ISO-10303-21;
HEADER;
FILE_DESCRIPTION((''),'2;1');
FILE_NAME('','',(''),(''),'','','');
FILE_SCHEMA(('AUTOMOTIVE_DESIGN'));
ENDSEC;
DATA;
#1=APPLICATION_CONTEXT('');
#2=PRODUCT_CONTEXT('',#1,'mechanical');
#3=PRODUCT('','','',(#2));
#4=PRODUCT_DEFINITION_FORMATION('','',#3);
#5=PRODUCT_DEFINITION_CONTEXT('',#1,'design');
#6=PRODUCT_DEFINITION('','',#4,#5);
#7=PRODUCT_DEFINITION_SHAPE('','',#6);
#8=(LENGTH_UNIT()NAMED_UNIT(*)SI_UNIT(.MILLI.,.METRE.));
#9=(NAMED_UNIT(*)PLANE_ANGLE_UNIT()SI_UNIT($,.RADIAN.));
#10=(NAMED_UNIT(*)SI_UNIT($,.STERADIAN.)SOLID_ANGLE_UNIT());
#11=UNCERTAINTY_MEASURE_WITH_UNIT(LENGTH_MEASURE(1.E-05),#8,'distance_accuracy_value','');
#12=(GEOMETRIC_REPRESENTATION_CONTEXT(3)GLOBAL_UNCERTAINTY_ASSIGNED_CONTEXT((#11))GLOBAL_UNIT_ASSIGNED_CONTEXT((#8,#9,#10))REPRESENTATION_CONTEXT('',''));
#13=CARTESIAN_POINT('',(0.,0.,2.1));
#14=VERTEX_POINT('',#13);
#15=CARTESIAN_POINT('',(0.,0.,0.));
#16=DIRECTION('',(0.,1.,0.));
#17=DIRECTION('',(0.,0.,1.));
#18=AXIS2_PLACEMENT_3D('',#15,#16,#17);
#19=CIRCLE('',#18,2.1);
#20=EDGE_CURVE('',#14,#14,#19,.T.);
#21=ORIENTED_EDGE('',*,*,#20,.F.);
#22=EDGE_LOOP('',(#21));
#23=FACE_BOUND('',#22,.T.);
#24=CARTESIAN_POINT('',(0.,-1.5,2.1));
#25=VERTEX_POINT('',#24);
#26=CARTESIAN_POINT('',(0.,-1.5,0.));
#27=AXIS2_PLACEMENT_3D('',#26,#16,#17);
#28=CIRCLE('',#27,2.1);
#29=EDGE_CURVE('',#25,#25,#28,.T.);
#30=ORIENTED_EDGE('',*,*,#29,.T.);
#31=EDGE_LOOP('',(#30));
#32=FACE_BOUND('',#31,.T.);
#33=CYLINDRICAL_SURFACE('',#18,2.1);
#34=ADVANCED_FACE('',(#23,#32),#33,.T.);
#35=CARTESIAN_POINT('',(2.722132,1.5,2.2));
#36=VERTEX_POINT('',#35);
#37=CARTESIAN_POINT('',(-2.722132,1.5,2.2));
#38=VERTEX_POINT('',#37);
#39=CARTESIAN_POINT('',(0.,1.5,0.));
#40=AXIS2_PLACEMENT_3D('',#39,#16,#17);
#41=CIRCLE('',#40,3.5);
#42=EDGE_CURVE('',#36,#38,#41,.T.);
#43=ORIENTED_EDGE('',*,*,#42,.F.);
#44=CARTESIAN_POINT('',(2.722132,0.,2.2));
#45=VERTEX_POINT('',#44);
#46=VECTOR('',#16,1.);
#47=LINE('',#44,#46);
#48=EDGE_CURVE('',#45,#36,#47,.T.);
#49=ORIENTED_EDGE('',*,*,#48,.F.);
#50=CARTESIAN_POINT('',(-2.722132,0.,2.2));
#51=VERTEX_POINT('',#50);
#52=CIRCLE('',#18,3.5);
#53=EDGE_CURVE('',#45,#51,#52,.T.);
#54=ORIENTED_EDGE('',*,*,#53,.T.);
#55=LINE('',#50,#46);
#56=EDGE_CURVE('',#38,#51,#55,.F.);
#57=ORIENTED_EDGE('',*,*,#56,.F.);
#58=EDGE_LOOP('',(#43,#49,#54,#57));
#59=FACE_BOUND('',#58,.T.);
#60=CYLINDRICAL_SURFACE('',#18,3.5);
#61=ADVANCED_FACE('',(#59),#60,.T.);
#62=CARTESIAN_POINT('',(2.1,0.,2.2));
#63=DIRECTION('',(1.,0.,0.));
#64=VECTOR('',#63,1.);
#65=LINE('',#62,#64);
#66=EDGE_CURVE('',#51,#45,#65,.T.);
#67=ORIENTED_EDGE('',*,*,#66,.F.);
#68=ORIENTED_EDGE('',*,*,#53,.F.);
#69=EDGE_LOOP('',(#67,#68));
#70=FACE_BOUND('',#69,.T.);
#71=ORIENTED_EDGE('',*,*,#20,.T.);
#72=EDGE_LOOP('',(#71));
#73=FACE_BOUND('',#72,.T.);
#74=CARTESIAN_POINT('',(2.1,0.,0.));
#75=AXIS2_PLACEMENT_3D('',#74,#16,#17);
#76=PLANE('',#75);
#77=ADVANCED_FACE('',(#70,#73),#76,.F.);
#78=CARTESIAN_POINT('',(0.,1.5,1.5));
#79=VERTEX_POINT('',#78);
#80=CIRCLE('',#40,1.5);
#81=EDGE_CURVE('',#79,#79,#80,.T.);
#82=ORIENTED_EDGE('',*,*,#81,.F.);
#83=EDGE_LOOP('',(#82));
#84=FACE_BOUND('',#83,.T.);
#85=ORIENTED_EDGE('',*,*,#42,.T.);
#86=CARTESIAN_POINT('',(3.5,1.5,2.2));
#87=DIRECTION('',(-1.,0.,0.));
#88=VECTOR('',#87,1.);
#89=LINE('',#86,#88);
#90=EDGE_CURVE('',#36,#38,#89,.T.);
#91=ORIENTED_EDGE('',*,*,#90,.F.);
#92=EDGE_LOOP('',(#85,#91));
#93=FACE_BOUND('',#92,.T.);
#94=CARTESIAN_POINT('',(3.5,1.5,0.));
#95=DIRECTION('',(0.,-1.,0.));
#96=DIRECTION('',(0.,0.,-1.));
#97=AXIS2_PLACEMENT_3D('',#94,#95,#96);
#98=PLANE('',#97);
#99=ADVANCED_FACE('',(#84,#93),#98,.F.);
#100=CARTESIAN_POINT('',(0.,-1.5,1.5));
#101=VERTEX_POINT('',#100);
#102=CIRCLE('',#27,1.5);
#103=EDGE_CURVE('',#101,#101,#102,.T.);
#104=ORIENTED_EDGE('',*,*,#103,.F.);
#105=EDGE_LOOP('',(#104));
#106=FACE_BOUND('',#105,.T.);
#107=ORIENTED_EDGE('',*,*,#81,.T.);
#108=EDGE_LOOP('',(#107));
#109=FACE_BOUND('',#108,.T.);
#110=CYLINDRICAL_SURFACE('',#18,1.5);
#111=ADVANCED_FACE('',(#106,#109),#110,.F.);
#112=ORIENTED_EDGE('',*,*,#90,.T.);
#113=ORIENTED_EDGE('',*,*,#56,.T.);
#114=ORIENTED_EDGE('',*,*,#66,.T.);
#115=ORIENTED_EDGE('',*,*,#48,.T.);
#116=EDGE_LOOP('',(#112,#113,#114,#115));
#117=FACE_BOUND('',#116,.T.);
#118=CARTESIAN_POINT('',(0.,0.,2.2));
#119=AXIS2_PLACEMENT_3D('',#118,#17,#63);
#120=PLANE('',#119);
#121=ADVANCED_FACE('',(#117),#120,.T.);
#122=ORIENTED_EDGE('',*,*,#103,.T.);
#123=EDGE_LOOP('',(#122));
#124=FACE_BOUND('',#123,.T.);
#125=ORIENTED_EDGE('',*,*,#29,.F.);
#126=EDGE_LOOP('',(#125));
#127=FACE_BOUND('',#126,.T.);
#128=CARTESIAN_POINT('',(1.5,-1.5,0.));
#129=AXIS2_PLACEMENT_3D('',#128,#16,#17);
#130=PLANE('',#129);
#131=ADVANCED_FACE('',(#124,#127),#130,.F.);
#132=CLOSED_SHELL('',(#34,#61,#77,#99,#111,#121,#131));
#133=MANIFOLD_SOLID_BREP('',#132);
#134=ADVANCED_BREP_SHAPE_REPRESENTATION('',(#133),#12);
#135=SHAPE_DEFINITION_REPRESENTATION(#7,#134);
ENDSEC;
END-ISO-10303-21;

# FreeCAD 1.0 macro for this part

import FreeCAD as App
import Part
import Sketcher
Q = App.Units.Quantity


def add_polygon(sketch, points):
    """Adds a closed chain of lines whose ends are joined by coincident constraints."""
    first, n = sketch.GeometryCount, len(points)
    for a, b in zip(points, points[1:] + points[:1]):
        sketch.addGeometry(Part.LineSegment(App.Vector(*a, 0), App.Vector(*b, 0)), False)
    for i in range(n):
        sketch.addConstraint(Sketcher.Constraint("Coincident", first + i, 2, first + (i + 1) % n, 1))

doc = App.newDocument("Part")
body = doc.addObject("PartDesign::Body", "Body")

# Sketch on XY plane
sketch1 = body.newObject("Sketcher::SketchObject", "Sketch")
sketch1.AttachmentSupport = (doc.getObject("XY_Plane"), [""])
sketch1.MapMode = "FlatFace"
add_polygon(sketch1, [(2.1, 0), (3.5, 0), (3.5, 1.5), (1.5, 1.5), (1.5, -1.5), (2.1, -1.5)])  # lines 0-5
sketch1.addConstraint(Sketcher.Constraint("Horizontal", 0))
sketch1.addConstraint(Sketcher.Constraint("Vertical", 1))
sketch1.addConstraint(Sketcher.Constraint("Horizontal", 2))
sketch1.addConstraint(Sketcher.Constraint("Vertical", 3))
sketch1.addConstraint(Sketcher.Constraint("Horizontal", 4))
sketch1.addConstraint(Sketcher.Constraint("Vertical", 5))
sketch1.addConstraint(Sketcher.Constraint("PointOnObject", 0, 2, -1))
sketch1.addConstraint(Sketcher.Constraint("Equal", 1, 5))
sketch1.addConstraint(Sketcher.Constraint("DistanceX", 2, 2, 2, 1, Q("2 mm")))
sketch1.addConstraint(Sketcher.Constraint("DistanceY", 3, 2, 3, 1, Q("3 mm")))
sketch1.addConstraint(Sketcher.Constraint("DistanceX", 0, 1, 0, 2, Q("1.4 mm")))
sketch1.addConstraint(Sketcher.Constraint("DistanceX", -1, 1, 0, 2, Q("3.5 mm")))
revolution = body.newObject("PartDesign::Revolution", "Revolution")
revolution.Profile = sketch1
revolution.ReferenceAxis = (sketch1, ["V_Axis"])
revolution.Angle = 360

# Sketch on XY plane
sketch2 = body.newObject("Sketcher::SketchObject", "Sketch001")
sketch2.AttachmentSupport = (doc.getObject("XY_Plane"), [""])
sketch2.MapMode = "FlatFace"
sketch2.AttachmentOffset = App.Placement(App.Vector(0, 0, 2.2), App.Rotation())
add_polygon(sketch2, [(-4.030185, 1.803745), (-4.030185, -1.803745), (4.030185, -1.803745), (4.030185, 1.803745)])  # lines 0-3
sketch2.addConstraint(Sketcher.Constraint("Vertical", 0))
sketch2.addConstraint(Sketcher.Constraint("Horizontal", 1))
sketch2.addConstraint(Sketcher.Constraint("Vertical", 2))
sketch2.addConstraint(Sketcher.Constraint("Horizontal", 3))
sketch2.addConstraint(Sketcher.Constraint("Symmetric", 0, 2, 2, 2, -1, 1))
sketch2.addConstraint(Sketcher.Constraint("DistanceX", 1, 1, 1, 2, Q("8.060371 mm")))
sketch2.addConstraint(Sketcher.Constraint("DistanceY", 0, 2, 0, 1, Q("3.60749 mm")))
pocket1 = body.newObject("PartDesign::Pocket", "Pocket")
pocket1.Profile = sketch2
pocket1.Length = 10
pocket1.Reversed = True

doc.recompute()
